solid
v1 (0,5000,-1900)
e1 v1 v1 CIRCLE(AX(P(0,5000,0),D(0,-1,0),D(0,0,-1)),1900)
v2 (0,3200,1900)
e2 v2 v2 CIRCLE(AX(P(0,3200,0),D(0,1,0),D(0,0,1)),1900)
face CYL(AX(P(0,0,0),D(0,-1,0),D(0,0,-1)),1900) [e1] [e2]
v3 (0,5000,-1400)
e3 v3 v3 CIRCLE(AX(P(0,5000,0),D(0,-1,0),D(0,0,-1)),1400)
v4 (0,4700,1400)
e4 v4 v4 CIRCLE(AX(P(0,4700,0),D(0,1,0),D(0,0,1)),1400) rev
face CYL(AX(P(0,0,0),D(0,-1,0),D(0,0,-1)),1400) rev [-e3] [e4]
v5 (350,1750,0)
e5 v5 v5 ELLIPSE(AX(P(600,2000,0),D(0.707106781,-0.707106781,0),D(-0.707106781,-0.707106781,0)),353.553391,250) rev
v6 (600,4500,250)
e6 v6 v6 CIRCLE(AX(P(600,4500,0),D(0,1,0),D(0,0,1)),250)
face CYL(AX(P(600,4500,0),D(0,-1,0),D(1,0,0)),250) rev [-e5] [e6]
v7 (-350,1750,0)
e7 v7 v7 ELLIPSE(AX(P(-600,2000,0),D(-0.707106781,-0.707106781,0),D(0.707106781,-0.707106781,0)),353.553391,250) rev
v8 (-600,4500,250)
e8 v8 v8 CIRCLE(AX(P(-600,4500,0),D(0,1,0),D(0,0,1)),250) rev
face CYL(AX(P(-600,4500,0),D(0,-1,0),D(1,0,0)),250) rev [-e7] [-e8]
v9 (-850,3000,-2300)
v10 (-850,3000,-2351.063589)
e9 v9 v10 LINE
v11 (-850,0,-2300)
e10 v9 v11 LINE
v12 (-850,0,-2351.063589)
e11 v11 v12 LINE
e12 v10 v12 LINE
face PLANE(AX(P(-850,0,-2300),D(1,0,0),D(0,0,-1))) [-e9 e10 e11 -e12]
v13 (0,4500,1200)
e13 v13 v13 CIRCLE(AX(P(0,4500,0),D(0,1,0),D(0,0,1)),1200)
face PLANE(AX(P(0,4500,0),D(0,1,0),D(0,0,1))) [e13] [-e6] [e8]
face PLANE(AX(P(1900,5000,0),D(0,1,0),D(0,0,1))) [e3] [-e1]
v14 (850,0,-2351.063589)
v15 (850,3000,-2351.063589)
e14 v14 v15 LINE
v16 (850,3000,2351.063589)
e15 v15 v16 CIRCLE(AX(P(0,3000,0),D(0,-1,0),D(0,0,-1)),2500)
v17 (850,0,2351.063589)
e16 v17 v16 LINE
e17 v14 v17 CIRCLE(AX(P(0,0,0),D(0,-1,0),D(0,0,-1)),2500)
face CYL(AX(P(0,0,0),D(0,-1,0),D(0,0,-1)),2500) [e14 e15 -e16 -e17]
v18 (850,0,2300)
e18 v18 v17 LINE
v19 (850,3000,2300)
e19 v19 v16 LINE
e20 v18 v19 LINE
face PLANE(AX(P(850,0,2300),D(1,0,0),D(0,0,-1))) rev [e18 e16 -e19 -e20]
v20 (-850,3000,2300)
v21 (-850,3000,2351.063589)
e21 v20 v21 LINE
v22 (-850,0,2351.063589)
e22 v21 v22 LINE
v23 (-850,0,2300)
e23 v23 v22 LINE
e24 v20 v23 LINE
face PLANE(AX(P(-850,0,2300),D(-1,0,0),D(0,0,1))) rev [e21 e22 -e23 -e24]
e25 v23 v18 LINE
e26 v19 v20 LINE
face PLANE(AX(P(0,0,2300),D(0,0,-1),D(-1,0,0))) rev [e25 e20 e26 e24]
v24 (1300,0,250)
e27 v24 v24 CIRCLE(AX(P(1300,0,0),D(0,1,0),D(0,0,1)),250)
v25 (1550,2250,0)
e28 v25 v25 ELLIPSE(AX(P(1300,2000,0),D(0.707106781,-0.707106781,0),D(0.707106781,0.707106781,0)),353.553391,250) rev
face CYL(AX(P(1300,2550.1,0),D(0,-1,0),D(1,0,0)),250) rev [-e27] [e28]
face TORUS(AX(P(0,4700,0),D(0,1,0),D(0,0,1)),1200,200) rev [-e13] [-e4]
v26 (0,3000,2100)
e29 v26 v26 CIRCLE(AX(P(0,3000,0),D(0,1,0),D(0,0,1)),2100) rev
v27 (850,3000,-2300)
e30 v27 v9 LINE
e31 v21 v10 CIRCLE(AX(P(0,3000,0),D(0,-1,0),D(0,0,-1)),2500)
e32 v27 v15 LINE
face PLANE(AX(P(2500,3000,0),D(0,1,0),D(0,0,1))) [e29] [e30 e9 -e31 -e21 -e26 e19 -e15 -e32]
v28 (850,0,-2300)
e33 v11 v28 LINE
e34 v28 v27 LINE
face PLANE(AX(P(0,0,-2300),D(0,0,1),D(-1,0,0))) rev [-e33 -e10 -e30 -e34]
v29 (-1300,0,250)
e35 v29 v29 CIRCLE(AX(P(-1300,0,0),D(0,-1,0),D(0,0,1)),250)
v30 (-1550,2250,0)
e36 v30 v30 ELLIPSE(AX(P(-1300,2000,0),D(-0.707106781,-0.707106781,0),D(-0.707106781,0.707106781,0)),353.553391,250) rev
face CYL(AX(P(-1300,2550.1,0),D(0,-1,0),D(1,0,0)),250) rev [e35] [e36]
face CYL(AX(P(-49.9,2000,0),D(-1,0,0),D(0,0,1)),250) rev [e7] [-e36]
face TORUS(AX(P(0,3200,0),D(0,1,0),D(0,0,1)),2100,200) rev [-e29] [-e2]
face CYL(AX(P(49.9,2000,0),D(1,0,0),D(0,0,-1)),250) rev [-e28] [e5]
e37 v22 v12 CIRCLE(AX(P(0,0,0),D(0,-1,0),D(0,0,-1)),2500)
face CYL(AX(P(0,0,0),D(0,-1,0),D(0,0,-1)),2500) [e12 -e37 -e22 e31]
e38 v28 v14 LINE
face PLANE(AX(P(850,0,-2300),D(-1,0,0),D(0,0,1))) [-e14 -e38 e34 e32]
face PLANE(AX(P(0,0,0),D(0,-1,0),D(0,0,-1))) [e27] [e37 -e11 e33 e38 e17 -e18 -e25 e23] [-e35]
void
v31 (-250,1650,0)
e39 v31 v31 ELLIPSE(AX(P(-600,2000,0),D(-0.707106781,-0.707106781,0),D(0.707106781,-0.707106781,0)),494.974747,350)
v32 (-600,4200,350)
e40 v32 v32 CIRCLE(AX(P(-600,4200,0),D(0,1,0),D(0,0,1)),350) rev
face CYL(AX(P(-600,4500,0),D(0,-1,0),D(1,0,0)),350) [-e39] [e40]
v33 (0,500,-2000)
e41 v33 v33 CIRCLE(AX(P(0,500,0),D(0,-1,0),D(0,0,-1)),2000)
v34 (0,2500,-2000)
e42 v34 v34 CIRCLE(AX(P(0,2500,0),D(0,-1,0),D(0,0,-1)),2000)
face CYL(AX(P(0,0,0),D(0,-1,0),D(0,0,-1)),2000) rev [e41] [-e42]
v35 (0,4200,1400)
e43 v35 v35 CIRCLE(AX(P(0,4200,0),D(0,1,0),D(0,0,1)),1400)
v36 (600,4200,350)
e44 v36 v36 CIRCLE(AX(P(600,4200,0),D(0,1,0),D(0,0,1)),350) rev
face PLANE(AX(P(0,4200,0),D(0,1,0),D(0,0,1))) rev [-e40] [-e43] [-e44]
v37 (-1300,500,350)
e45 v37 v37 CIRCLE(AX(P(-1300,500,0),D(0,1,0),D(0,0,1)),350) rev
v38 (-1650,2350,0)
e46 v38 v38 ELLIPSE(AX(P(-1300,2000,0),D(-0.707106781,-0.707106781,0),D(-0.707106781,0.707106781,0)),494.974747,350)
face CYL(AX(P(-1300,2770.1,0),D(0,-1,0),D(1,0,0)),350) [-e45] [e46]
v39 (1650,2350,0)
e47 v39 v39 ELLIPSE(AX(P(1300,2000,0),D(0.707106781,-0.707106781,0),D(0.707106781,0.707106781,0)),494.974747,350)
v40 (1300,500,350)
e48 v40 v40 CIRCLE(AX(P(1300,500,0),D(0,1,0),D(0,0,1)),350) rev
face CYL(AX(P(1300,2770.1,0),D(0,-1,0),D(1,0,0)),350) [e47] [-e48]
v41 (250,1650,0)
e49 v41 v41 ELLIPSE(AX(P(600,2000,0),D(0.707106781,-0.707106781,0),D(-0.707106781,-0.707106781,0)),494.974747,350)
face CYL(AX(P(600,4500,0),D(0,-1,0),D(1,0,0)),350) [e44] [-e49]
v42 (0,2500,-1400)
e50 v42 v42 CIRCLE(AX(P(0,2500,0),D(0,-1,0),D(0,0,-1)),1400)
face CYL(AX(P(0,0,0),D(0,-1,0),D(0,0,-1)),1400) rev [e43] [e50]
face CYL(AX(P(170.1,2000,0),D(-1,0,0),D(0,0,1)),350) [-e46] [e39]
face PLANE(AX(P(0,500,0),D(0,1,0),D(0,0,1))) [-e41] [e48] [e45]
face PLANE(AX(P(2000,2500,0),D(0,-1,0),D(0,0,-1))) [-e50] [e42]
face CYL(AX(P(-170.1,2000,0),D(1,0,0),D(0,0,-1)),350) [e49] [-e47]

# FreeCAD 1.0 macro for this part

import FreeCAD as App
import Part
import Sketcher
from FreeCAD import Vector
Q = App.Units.Quantity


def edges_at(feature, points):
    """Names of the edges that pass closest to the given points."""
    edges = feature.Shape.Edges
    near = lambda p: min(range(len(edges)), key=lambda i: edges[i].distToShape(Part.Vertex(*p))[0])
    return sorted({f"Edge{near(p) + 1}" for p in points})

doc = App.newDocument("Part")
body = doc.addObject("PartDesign::Body", "Body")

# Sketch on XY plane
sketch1 = body.newObject("Sketcher::SketchObject", "Sketch")
sketch1.AttachmentSupport = (doc.getObject("XY_Plane"), [""])
sketch1.MapMode = "FlatFace"
sketch1.addGeometry([
    Part.LineSegment(Vector(0, 0, 0), Vector(2500, 0, 0)),  # 0
    Part.LineSegment(Vector(2500, 0, 0), Vector(2500, 3000, 0)),  # 1
    Part.LineSegment(Vector(2500, 3000, 0), Vector(1900, 3000, 0)),  # 2
    Part.LineSegment(Vector(1900, 3000, 0), Vector(1900, 5000, 0)),  # 3
    Part.LineSegment(Vector(1900, 5000, 0), Vector(1400, 5000, 0)),  # 4
    Part.LineSegment(Vector(1400, 5000, 0), Vector(1400, 2500, 0)),  # 5
    Part.LineSegment(Vector(1400, 2500, 0), Vector(2000, 2500, 0)),  # 6
    Part.LineSegment(Vector(2000, 2500, 0), Vector(2000, 500, 0)),  # 7
    Part.LineSegment(Vector(2000, 500, 0), Vector(0, 500, 0)),  # 8
    Part.LineSegment(Vector(0, 500, 0), Vector(0, 0, 0)),  # 9
], False)
sketch1.addConstraint([
    Sketcher.Constraint("Coincident", 0, 2, 1, 1),
    Sketcher.Constraint("Coincident", 1, 2, 2, 1),
    Sketcher.Constraint("Coincident", 2, 2, 3, 1),
    Sketcher.Constraint("Coincident", 3, 2, 4, 1),
    Sketcher.Constraint("Coincident", 4, 2, 5, 1),
    Sketcher.Constraint("Coincident", 5, 2, 6, 1),
    Sketcher.Constraint("Coincident", 6, 2, 7, 1),
    Sketcher.Constraint("Coincident", 7, 2, 8, 1),
    Sketcher.Constraint("Coincident", 8, 2, 9, 1),
    Sketcher.Constraint("Coincident", 9, 2, 0, 1),
    Sketcher.Constraint("Horizontal", 0),
    Sketcher.Constraint("Vertical", 1),
    Sketcher.Constraint("Horizontal", 2),
    Sketcher.Constraint("Vertical", 3),
    Sketcher.Constraint("Horizontal", 4),
    Sketcher.Constraint("Vertical", 5),
    Sketcher.Constraint("Horizontal", 6),
    Sketcher.Constraint("Vertical", 7),
    Sketcher.Constraint("Horizontal", 8),
    Sketcher.Constraint("Vertical", 9),
    Sketcher.Constraint("Coincident", 9, 2, -1, 1),
    Sketcher.Constraint("Equal", 2, 6),
    Sketcher.Constraint("Equal", 8, 3),
    Sketcher.Constraint("Equal", 0, 5),
    Sketcher.Constraint("Equal", 3, 7),
    Sketcher.Constraint("Equal", 4, 9),
    Sketcher.Constraint("DistanceX", 0, 1, 0, 2, Q("2500 mm")),
    Sketcher.Constraint("DistanceX", 2, 2, 2, 1, Q("600 mm")),
    Sketcher.Constraint("DistanceX", 4, 2, 4, 1, Q("500 mm")),
])
revolution = body.newObject("PartDesign::Revolution", "Revolution")
revolution.Profile = sketch1
revolution.ReferenceAxis = (sketch1, ["V_Axis"])
revolution.Angle = 360

# Sketch on XZ plane
sketch2 = body.newObject("Sketcher::SketchObject", "Sketch001")
sketch2.AttachmentSupport = (doc.getObject("XZ_Plane"), [""])
sketch2.MapMode = "FlatFace"
sketch2.AttachmentOffset = App.Placement(Vector(0, 0, -4200), App.Rotation())
sketch2.addGeometry(Part.Circle(Vector(0, 0, 0), Vector(0, 0, 1), 1400), False)
sketch2.addConstraint([
    Sketcher.Constraint("Coincident", 0, 3, -1, 1),
    Sketcher.Constraint("Diameter", 0, Q("2800 mm")),
])
pad1 = body.newObject("PartDesign::Pad", "Pad")
pad1.Profile = sketch2
pad1.Length = 300
pad1.Reversed = True

# Sketch on XZ plane
sketch3 = body.newObject("Sketcher::SketchObject", "Sketch002")
sketch3.AttachmentSupport = (doc.getObject("XZ_Plane"), [""])
sketch3.MapMode = "FlatFace"
sketch3.AttachmentOffset = App.Placement(Vector(0, 0, -4500), App.Rotation())
sketch3.addGeometry([
    Part.Circle(Vector(600, 0, 0), Vector(0, 0, 1), 350),
    Part.Circle(Vector(600, 0, 0), Vector(0, 0, 1), 250),
], False)
sketch3.addConstraint([
    Sketcher.Constraint("Coincident", 1, 3, 0, 3),
    Sketcher.Constraint("PointOnObject", 0, 3, -1),
    Sketcher.Constraint("Diameter", 0, Q("700 mm")),
    Sketcher.Constraint("Diameter", 1, Q("500 mm")),
    Sketcher.Constraint("DistanceX", -1, 1, 0, 3, Q("600 mm")),
])

# Sketch on XY plane
sketch4 = body.newObject("Sketcher::SketchObject", "Sketch003")
sketch4.AttachmentSupport = (doc.getObject("XY_Plane"), [""])
sketch4.MapMode = "FlatFace"
sketch4.addGeometry([
    Part.LineSegment(Vector(600, 4500, 0), Vector(600, 2000, 0)),
    Part.LineSegment(Vector(600, 2000, 0), Vector(1300, 2000, 0)),
    Part.LineSegment(Vector(1300, 2000, 0), Vector(1300, 0, 0)),
], False)
sketch4.addConstraint([
    Sketcher.Constraint("Coincident", 0, 2, 1, 1),
    Sketcher.Constraint("Coincident", 1, 2, 2, 1),
    Sketcher.Constraint("Vertical", 0),
    Sketcher.Constraint("Horizontal", 1),
    Sketcher.Constraint("Vertical", 2),
    Sketcher.Constraint("PointOnObject", 2, 2, -1),
    Sketcher.Constraint("DistanceX", 1, 1, 1, 2, Q("700 mm")),
    Sketcher.Constraint("DistanceY", 0, 2, 0, 1, Q("2500 mm")),
    Sketcher.Constraint("DistanceY", 2, 2, 2, 1, Q("2000 mm")),
    Sketcher.Constraint("DistanceX", -1, 1, 0, 1, Q("600 mm")),
])
doc.recompute()

additivepipe = body.newObject("PartDesign::AdditivePipe", "AdditivePipe")
additivepipe.Profile = sketch3
additivepipe.Spine = (sketch4, ["Edge1", "Edge2", "Edge3"])
additivepipe.Transition = "Right corner"

# Sketch on XZ plane
sketch5 = body.newObject("Sketcher::SketchObject", "Sketch004")
sketch5.AttachmentSupport = (doc.getObject("XZ_Plane"), [""])
sketch5.MapMode = "FlatFace"
sketch5.AttachmentOffset = App.Placement(Vector(0, 0, -500), App.Rotation())
sketch5.addGeometry(Part.Circle(Vector(1300, 0, 0), Vector(0, 0, 1), 250), False)
sketch5.addConstraint([
    Sketcher.Constraint("PointOnObject", 0, 3, -1),
    Sketcher.Constraint("Diameter", 0, Q("500 mm")),
    Sketcher.Constraint("DistanceX", -1, 1, 0, 3, Q("1300 mm")),
])
pocket1 = body.newObject("PartDesign::Pocket", "Pocket")
pocket1.Profile = sketch5
pocket1.Type = "ThroughAll"
pocket1.Reversed = True

# Sketch on XZ plane
sketch6 = body.newObject("Sketcher::SketchObject", "Sketch005")
sketch6.AttachmentSupport = (doc.getObject("XZ_Plane"), [""])
sketch6.MapMode = "FlatFace"
sketch6.AttachmentOffset = App.Placement(Vector(0, 0, -4200), App.Rotation())
sketch6.addGeometry(Part.Circle(Vector(600, 0, 0), Vector(0, 0, 1), 250), False)
sketch6.addConstraint([
    Sketcher.Constraint("PointOnObject", 0, 3, -1),
    Sketcher.Constraint("Diameter", 0, Q("500 mm")),
    Sketcher.Constraint("DistanceX", -1, 1, 0, 3, Q("600 mm")),
])
pocket2 = body.newObject("PartDesign::Pocket", "Pocket001")
pocket2.Profile = sketch6
pocket2.Type = "ThroughAll"
doc.recompute()

mirrored = body.newObject("PartDesign::Mirrored", "Mirrored")
mirrored.Originals = [additivepipe, pocket1, pocket2]
mirrored.MirrorPlane = (doc.getObject("YZ_Plane"), [""])
body.Tip = mirrored

# Sketch on XY plane
sketch7 = body.newObject("Sketcher::SketchObject", "Sketch006")
sketch7.AttachmentSupport = (doc.getObject("XY_Plane"), [""])
sketch7.MapMode = "FlatFace"
sketch7.AttachmentOffset = App.Placement(Vector(0, 0, 2500), App.Rotation())
sketch7.addGeometry([
    Part.LineSegment(Vector(-850, 3000, 0), Vector(-850, 0, 0)),
    Part.LineSegment(Vector(-850, 0, 0), Vector(850, 0, 0)),
    Part.LineSegment(Vector(850, 0, 0), Vector(850, 3000, 0)),
    Part.LineSegment(Vector(850, 3000, 0), Vector(-850, 3000, 0)),
], False)
sketch7.addConstraint([
    Sketcher.Constraint("Coincident", 0, 2, 1, 1),
    Sketcher.Constraint("Coincident", 1, 2, 2, 1),
    Sketcher.Constraint("Coincident", 2, 2, 3, 1),
    Sketcher.Constraint("Coincident", 3, 2, 0, 1),
    Sketcher.Constraint("Vertical", 0),
    Sketcher.Constraint("Horizontal", 1),
    Sketcher.Constraint("Vertical", 2),
    Sketcher.Constraint("Horizontal", 3),
    Sketcher.Constraint("Symmetric", 0, 2, 1, 2, -1, 1),
    Sketcher.Constraint("DistanceX", 1, 1, 1, 2, Q("1700 mm")),
    Sketcher.Constraint("DistanceY", 0, 2, 0, 1, Q("3000 mm")),
])
pocket3 = body.newObject("PartDesign::Pocket", "Pocket002")
pocket3.Profile = sketch7
pocket3.Length = 200
doc.recompute()

mirrored2 = body.newObject("PartDesign::Mirrored", "Mirrored001")
mirrored2.Originals = [pocket3]
mirrored2.MirrorPlane = (doc.getObject("XY_Plane"), [""])
body.Tip = mirrored2
doc.recompute()

fillet = body.newObject("PartDesign::Fillet", "Fillet")
fillet.Base = (mirrored2, edges_at(mirrored2, [(0, 3000, 1900), (0, 4500, 1400)]))
fillet.Radius = 200

doc.recompute()
